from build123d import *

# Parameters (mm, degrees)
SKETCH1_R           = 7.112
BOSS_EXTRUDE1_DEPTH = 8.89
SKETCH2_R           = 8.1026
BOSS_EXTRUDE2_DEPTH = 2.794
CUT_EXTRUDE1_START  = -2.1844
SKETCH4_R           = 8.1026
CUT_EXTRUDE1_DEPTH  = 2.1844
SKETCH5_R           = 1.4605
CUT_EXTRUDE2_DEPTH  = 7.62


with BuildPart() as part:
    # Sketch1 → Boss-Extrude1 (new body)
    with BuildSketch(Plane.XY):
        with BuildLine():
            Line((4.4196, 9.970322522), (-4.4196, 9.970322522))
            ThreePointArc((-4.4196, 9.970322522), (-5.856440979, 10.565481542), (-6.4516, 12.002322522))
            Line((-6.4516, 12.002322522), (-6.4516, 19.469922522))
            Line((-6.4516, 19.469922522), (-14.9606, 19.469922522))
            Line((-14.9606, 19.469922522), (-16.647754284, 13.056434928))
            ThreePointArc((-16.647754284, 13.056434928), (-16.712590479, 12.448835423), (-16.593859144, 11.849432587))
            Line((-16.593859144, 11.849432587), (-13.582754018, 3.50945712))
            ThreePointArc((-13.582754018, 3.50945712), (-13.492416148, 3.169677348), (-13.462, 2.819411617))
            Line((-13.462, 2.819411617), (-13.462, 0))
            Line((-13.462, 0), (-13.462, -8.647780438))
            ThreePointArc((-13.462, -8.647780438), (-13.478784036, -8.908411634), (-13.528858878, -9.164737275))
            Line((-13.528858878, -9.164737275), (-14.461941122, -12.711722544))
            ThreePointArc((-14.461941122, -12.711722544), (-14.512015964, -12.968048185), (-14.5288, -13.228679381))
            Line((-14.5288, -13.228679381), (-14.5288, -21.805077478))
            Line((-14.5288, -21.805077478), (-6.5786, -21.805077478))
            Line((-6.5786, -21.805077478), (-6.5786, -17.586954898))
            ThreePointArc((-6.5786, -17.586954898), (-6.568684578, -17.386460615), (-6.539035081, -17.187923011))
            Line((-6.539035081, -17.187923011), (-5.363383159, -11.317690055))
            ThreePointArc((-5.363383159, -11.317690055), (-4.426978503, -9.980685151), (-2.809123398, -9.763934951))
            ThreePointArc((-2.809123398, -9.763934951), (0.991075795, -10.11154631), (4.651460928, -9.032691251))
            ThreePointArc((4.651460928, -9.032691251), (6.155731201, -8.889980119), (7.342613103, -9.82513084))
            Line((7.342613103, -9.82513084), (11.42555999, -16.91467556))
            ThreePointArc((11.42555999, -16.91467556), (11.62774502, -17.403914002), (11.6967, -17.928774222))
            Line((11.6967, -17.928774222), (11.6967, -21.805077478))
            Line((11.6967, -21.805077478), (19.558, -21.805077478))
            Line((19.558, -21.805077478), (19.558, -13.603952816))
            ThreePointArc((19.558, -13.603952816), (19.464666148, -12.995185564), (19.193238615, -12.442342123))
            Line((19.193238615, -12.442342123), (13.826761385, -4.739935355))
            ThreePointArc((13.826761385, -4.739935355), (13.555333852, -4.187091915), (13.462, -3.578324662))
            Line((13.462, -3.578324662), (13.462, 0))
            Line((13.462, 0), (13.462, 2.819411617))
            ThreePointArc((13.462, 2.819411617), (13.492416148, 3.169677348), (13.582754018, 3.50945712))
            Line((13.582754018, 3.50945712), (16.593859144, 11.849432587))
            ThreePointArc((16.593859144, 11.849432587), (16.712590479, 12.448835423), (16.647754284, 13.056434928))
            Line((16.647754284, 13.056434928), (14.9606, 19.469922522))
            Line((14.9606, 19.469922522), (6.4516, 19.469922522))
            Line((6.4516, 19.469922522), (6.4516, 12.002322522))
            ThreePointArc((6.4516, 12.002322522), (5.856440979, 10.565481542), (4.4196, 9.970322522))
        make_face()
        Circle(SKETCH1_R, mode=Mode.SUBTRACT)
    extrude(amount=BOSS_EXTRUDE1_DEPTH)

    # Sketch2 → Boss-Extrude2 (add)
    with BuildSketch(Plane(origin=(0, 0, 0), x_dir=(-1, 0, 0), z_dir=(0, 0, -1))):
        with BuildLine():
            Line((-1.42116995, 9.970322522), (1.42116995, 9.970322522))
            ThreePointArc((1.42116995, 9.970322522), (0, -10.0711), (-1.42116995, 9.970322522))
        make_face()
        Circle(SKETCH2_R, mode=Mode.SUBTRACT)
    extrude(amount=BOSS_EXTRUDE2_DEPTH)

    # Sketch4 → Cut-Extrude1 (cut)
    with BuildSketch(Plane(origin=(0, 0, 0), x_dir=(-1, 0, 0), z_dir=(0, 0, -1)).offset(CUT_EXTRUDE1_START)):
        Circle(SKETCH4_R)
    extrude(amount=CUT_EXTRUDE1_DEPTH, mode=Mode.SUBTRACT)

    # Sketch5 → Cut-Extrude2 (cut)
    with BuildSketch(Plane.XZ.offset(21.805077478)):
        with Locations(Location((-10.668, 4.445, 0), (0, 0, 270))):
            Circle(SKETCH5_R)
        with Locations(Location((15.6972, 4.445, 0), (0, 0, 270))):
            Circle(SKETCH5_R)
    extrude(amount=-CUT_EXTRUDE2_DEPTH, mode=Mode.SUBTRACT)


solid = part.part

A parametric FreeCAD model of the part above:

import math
import FreeCAD as App
import Part
import Sketcher

V = App.Vector
Q = App.Units.Quantity

doc = App.newDocument("Part")
body = doc.addObject("PartDesign::Body", "Body")

# Sketch on XY plane
sketch1 = body.newObject("Sketcher::SketchObject", "Sketch")
sketch1.AttachmentSupport = (doc.getObject("XY_Plane"), [""])
sketch1.MapMode = "FlatFace"
sketch1.addGeometry(Part.LineSegment(V(4.42, 9.97, 0), V(-4.42, 9.97, 0)), False)
sketch1.addGeometry(Part.ArcOfCircle(Part.Circle(V(-4.42, 12, 0), V(0, 0, 1), 2.03), math.radians(180), math.radians(270)), False)
sketch1.addGeometry(Part.LineSegment(V(-6.45, 12, 0), V(-6.45, 19.47, 0)), False)
sketch1.addGeometry(Part.LineSegment(V(-6.45, 19.47, 0), V(-14.96, 19.47, 0)), False)
sketch1.addGeometry(Part.LineSegment(V(-14.96, 19.47, 0), V(-16.65, 13.06, 0)), False)
sketch1.addGeometry(Part.ArcOfCircle(Part.Circle(V(-14.68, 12.54, 0), V(0, 0, 1), 2.03), math.radians(165), math.radians(200)), False)
sketch1.addGeometry(Part.LineSegment(V(-16.59, 11.85, 0), V(-13.58, 3.51, 0)), False)
sketch1.addGeometry(Part.ArcOfCircle(Part.Circle(V(-15.49, 2.82, 0), V(0, 0, 1), 2.03), math.radians(0), math.radians(19.85)), False)
sketch1.addGeometry(Part.LineSegment(V(-13.46, 2.82, 0), V(-13.46, -8.65, 0)), False)
sketch1.addGeometry(Part.ArcOfCircle(Part.Circle(V(-15.49, -8.65, 0), V(0, 0, 1), 2.03), math.radians(-14.74), math.radians(0)), False)
sketch1.addGeometry(Part.LineSegment(V(-13.53, -9.16, 0), V(-14.46, -12.71, 0)), False)
sketch1.addGeometry(Part.ArcOfCircle(Part.Circle(V(-12.5, -13.23, 0), V(0, 0, 1), 2.03), math.radians(165.26), math.radians(180)), False)
sketch1.addGeometry(Part.LineSegment(V(-14.53, -13.23, 0), V(-14.53, -21.81, 0)), False)
sketch1.addGeometry(Part.LineSegment(V(-14.53, -21.81, 0), V(-6.58, -21.81, 0)), False)
sketch1.addGeometry(Part.LineSegment(V(-6.58, -21.81, 0), V(-6.58, -17.59, 0)), False)
sketch1.addGeometry(Part.ArcOfCircle(Part.Circle(V(-4.55, -17.59, 0), V(0, 0, 1), 2.03), math.radians(168.68), math.radians(180)), False)
sketch1.addGeometry(Part.LineSegment(V(-6.54, -17.19, 0), V(-5.36, -11.32, 0)), False)
sketch1.addGeometry(Part.ArcOfCircle(Part.Circle(V(-3.37, -11.72, 0), V(0, 0, 1), 2.03), math.radians(74), math.radians(169)), False)
sketch1.addGeometry(Part.ArcOfCircle(Part.Circle(V(0, 0, 0), V(0, 0, 1), 10.16), math.radians(-106), math.radians(-63)), False)
sketch1.addGeometry(Part.ArcOfCircle(Part.Circle(V(5.58, -10.84, 0), V(0, 0, 1), 2.03), math.radians(30), math.radians(117)), False)
sketch1.addGeometry(Part.LineSegment(V(7.34, -9.83, 0), V(11.43, -16.91, 0)), False)
sketch1.addGeometry(Part.ArcOfCircle(Part.Circle(V(9.66, -17.93, 0), V(0, 0, 1), 2.03), math.radians(0), math.radians(30)), False)
sketch1.addGeometry(Part.LineSegment(V(11.7, -17.93, 0), V(11.7, -21.81, 0)), False)
sketch1.addGeometry(Part.LineSegment(V(11.7, -21.81, 0), V(19.56, -21.81, 0)), False)
sketch1.addGeometry(Part.LineSegment(V(19.56, -21.81, 0), V(19.56, -13.6, 0)), False)
sketch1.addGeometry(Part.ArcOfCircle(Part.Circle(V(17.53, -13.6, 0), V(0, 0, 1), 2.03), math.radians(0), math.radians(35)), False)
sketch1.addGeometry(Part.LineSegment(V(19.19, -12.44, 0), V(13.83, -4.74, 0)), False)
sketch1.addGeometry(Part.ArcOfCircle(Part.Circle(V(15.49, -3.58, 0), V(0, 0, 1), 2.03), math.radians(180), math.radians(215)), False)
sketch1.addGeometry(Part.LineSegment(V(13.46, -3.58, 0), V(13.46, 2.82, 0)), False)
sketch1.addGeometry(Part.ArcOfCircle(Part.Circle(V(15.49, 2.82, 0), V(0, 0, 1), 2.03), math.radians(160.15), math.radians(180)), False)
sketch1.addGeometry(Part.LineSegment(V(13.58, 3.51, 0), V(16.59, 11.85, 0)), False)
sketch1.addGeometry(Part.ArcOfCircle(Part.Circle(V(14.68, 12.54, 0), V(0, 0, 1), 2.03), math.radians(-20), math.radians(15)), False)
sketch1.addGeometry(Part.LineSegment(V(16.65, 13.06, 0), V(14.96, 19.47, 0)), False)
sketch1.addGeometry(Part.LineSegment(V(14.96, 19.47, 0), V(6.45, 19.47, 0)), False)
sketch1.addGeometry(Part.LineSegment(V(6.45, 19.47, 0), V(6.45, 12, 0)), False)
sketch1.addGeometry(Part.ArcOfCircle(Part.Circle(V(4.42, 12, 0), V(0, 0, 1), 2.03), math.radians(-90), math.radians(0)), False)
sketch1.addGeometry(Part.Circle(V(0, 0, 0), V(0, 0, 1), 7.11), False)
sketch1.addConstraint(Sketcher.Constraint("Tangent", 0, 2, 1, 2))
sketch1.addConstraint(Sketcher.Constraint("Tangent", 1, 1, 2, 1))
sketch1.addConstraint(Sketcher.Constraint("Coincident", 2, 2, 3, 1))
sketch1.addConstraint(Sketcher.Constraint("Coincident", 3, 2, 4, 1))
sketch1.addConstraint(Sketcher.Constraint("Tangent", 4, 2, 5, 1))
sketch1.addConstraint(Sketcher.Constraint("Tangent", 5, 2, 6, 1))
sketch1.addConstraint(Sketcher.Constraint("Tangent", 6, 2, 7, 2))
sketch1.addConstraint(Sketcher.Constraint("Tangent", 7, 1, 8, 1))
sketch1.addConstraint(Sketcher.Constraint("Tangent", 8, 2, 9, 2))
sketch1.addConstraint(Sketcher.Constraint("Tangent", 9, 1, 10, 1))
sketch1.addConstraint(Sketcher.Constraint("Tangent", 10, 2, 11, 1))
sketch1.addConstraint(Sketcher.Constraint("Tangent", 11, 2, 12, 1))
sketch1.addConstraint(Sketcher.Constraint("Coincident", 12, 2, 13, 1))
sketch1.addConstraint(Sketcher.Constraint("Coincident", 13, 2, 14, 1))
sketch1.addConstraint(Sketcher.Constraint("Tangent", 14, 2, 15, 2))
sketch1.addConstraint(Sketcher.Constraint("Tangent", 15, 1, 16, 1))
sketch1.addConstraint(Sketcher.Constraint("Tangent", 16, 2, 17, 2))
sketch1.addConstraint(Sketcher.Constraint("Tangent", 17, 1, 18, 1))
sketch1.addConstraint(Sketcher.Constraint("Tangent", 18, 2, 19, 2))
sketch1.addConstraint(Sketcher.Constraint("Tangent", 19, 1, 20, 1))
sketch1.addConstraint(Sketcher.Constraint("Tangent", 20, 2, 21, 2))
sketch1.addConstraint(Sketcher.Constraint("Tangent", 21, 1, 22, 1))
sketch1.addConstraint(Sketcher.Constraint("Coincident", 22, 2, 23, 1))
sketch1.addConstraint(Sketcher.Constraint("Coincident", 23, 2, 24, 1))
sketch1.addConstraint(Sketcher.Constraint("Tangent", 24, 2, 25, 1))
sketch1.addConstraint(Sketcher.Constraint("Tangent", 25, 2, 26, 1))
sketch1.addConstraint(Sketcher.Constraint("Tangent", 26, 2, 27, 2))
sketch1.addConstraint(Sketcher.Constraint("Tangent", 27, 1, 28, 1))
sketch1.addConstraint(Sketcher.Constraint("Tangent", 28, 2, 29, 2))
sketch1.addConstraint(Sketcher.Constraint("Tangent", 29, 1, 30, 1))
sketch1.addConstraint(Sketcher.Constraint("Tangent", 30, 2, 31, 1))
sketch1.addConstraint(Sketcher.Constraint("Tangent", 31, 2, 32, 1))
sketch1.addConstraint(Sketcher.Constraint("Coincident", 32, 2, 33, 1))
sketch1.addConstraint(Sketcher.Constraint("Coincident", 33, 2, 34, 1))
sketch1.addConstraint(Sketcher.Constraint("Tangent", 34, 2, 35, 2))
sketch1.addConstraint(Sketcher.Constraint("Tangent", 35, 1, 0, 1))
sketch1.addConstraint(Sketcher.Constraint("Horizontal", 0))
sketch1.addConstraint(Sketcher.Constraint("Vertical", 2))
sketch1.addConstraint(Sketcher.Constraint("Horizontal", 3))
sketch1.addConstraint(Sketcher.Constraint("Vertical", 8))
sketch1.addConstraint(Sketcher.Constraint("Vertical", 12))
sketch1.addConstraint(Sketcher.Constraint("Horizontal", 13))
sketch1.addConstraint(Sketcher.Constraint("Vertical", 14))
sketch1.addConstraint(Sketcher.Constraint("Vertical", 22))
sketch1.addConstraint(Sketcher.Constraint("Horizontal", 23))
sketch1.addConstraint(Sketcher.Constraint("Vertical", 24))
sketch1.addConstraint(Sketcher.Constraint("Vertical", 28))
sketch1.addConstraint(Sketcher.Constraint("Horizontal", 33))
sketch1.addConstraint(Sketcher.Constraint("Vertical", 34))
sketch1.addConstraint(Sketcher.Constraint("Coincident", 18, 3, -1, 1))
sketch1.addConstraint(Sketcher.Constraint("Coincident", 36, 3, -1, 1))
sketch1.addConstraint(Sketcher.Constraint("Equal", 1, 5))
sketch1.addConstraint(Sketcher.Constraint("Equal", 5, 7))
sketch1.addConstraint(Sketcher.Constraint("Equal", 7, 9))
sketch1.addConstraint(Sketcher.Constraint("Equal", 9, 11))
sketch1.addConstraint(Sketcher.Constraint("Equal", 11, 15))
sketch1.addConstraint(Sketcher.Constraint("Equal", 15, 17))
sketch1.addConstraint(Sketcher.Constraint("Equal", 17, 19))
sketch1.addConstraint(Sketcher.Constraint("Equal", 19, 21))
sketch1.addConstraint(Sketcher.Constraint("Equal", 21, 25))
sketch1.addConstraint(Sketcher.Constraint("Equal", 25, 27))
sketch1.addConstraint(Sketcher.Constraint("Equal", 27, 29))
sketch1.addConstraint(Sketcher.Constraint("Equal", 29, 31))
sketch1.addConstraint(Sketcher.Constraint("Equal", 31, 35))
sketch1.addConstraint(Sketcher.Constraint("Symmetric", 7, 3, 29, 3, -2))
sketch1.addConstraint(Sketcher.Constraint("Symmetric", 5, 3, 31, 3, -2))
sketch1.addConstraint(Sketcher.Constraint("Symmetric", 3, 2, 32, 2, -2))
sketch1.addConstraint(Sketcher.Constraint("Parallel", 4, 10))
sketch1.addConstraint(Sketcher.Constraint("Horizontal", 13, 2, 22, 2))
sketch1.addConstraint(Sketcher.Constraint("Equal", 3, 33))
sketch1.addConstraint(Sketcher.Constraint("Radius", 18, Q("0.4 in")))
sketch1.addConstraint(Sketcher.Constraint("Diameter", 36, Q("0.56 in")))
sketch1.addConstraint(Sketcher.Constraint("Radius", 1, Q("0.08 in")))
sketch1.addConstraint(Sketcher.Constraint("DistanceX", 0, 2, 0, 1, Q("0.348 in")))
sketch1.addConstraint(Sketcher.Constraint("DistanceX", 3, 2, 3, 1, Q("0.335 in")))
sketch1.addConstraint(Sketcher.Constraint("DistanceX", 13, 1, 13, 2, Q("0.313 in")))
sketch1.addConstraint(Sketcher.Constraint("DistanceY", 2, 1, 2, 2, Q("0.294 in")))
sketch1.addConstraint(Sketcher.Constraint("DistanceX", 7, 3, -1, 1, Q("0.61 in")))
sketch1.addConstraint(Sketcher.Constraint("DistanceX", -1, 1, 25, 3, Q("0.69 in")))
sketch1.addConstraint(Sketcher.Constraint("DistanceX", 23, 1, 23, 2, Q("0.3095 in")))
sketch1.addConstraint(Sketcher.Constraint("DistanceX", 11, 3, -1, 1, Q("0.492 in")))
sketch1.addConstraint(Sketcher.Constraint("DistanceY", 12, 2, 12, 1, 8.576398))
sketch1.addConstraint(Sketcher.Constraint("Distance", 6, 8.866902))
sketch1.addConstraint(Sketcher.Constraint("Distance", 16, 5.986802))
sketch1.addConstraint(Sketcher.Constraint("DistanceY", 11, 3, 9, 3, 4.580899))
sketch1.addConstraint(Sketcher.Constraint("DistanceY", 11, 3, 1, 3, 25.231002))
sketch1.addConstraint(Sketcher.Constraint("DistanceX", 17, 3, 19, 3, 8.952701))
sketch1.addConstraint(Sketcher.Constraint("DistanceX", 4, 2, 6, 2, 3.065))
sketch1.addConstraint(Sketcher.Constraint("DistanceY", 15, 1, 17, 3, 5.471201))
sketch1.addConstraint(Sketcher.Constraint("DistanceY", 19, 3, 19, 1, 1.014099))
sketch1.addConstraint(Sketcher.Constraint("DistanceY", 22, 2, 20, 2, 4.890402))
sketch1.addConstraint(Sketcher.Constraint("DistanceY", 24, 1, 24, 2, 8.201125))
sketch1.addConstraint(Sketcher.Constraint("DistanceY", 28, 1, 28, 2, 6.397736))
pad1 = body.newObject("PartDesign::Pad", "Pad")
pad1.Profile = sketch1
pad1.Length = Q("0.35 in")

# Sketch on XY plane
sketch2 = body.newObject("Sketcher::SketchObject", "Sketch001")
sketch2.AttachmentSupport = (doc.getObject("XY_Plane"), [""])
sketch2.MapMode = "FlatFace"
sketch2.addGeometry(Part.LineSegment(V(-1.4, 10, 0), V(1.4, 10, 0)), False)
sketch2.addGeometry(Part.ArcOfCircle(Part.Circle(V(0, 0, 0), V(0, 0, 1), 10.1), math.radians(98), math.radians(442)), False)
sketch2.addGeometry(Part.Circle(V(0, 0, 0), V(0, 0, 1), 8.1), False)
sketch2.addConstraint(Sketcher.Constraint("Coincident", 0, 1, 1, 1))
sketch2.addConstraint(Sketcher.Constraint("Coincident", 1, 2, 0, 2))
sketch2.addConstraint(Sketcher.Constraint("Horizontal", 0))
sketch2.addConstraint(Sketcher.Constraint("Coincident", 1, 3, -1, 1))
sketch2.addConstraint(Sketcher.Constraint("Coincident", 2, 3, -1, 1))
sketch2.addConstraint(Sketcher.Constraint("Diameter", 2, Q("0.638 in")))
sketch2.addConstraint(Sketcher.Constraint("Radius", 1, Q("0.3965 in")))
sketch2.addConstraint(Sketcher.Constraint("DistanceX", 0, 1, 0, 2, 2.84234))
pad2 = body.newObject("PartDesign::Pad", "Pad001")
pad2.Profile = sketch2
pad2.Length = Q("0.11 in")
pad2.Reversed = True

# Sketch on XY plane
sketch3 = body.newObject("Sketcher::SketchObject", "Sketch002")
sketch3.AttachmentSupport = (doc.getObject("XY_Plane"), [""])
sketch3.MapMode = "FlatFace"
sketch3.AttachmentOffset = App.Placement(V(0, 0, 0.086 * 25.4), App.Rotation())
sketch3.addGeometry(Part.Circle(V(0, 0, 0), V(0, 0, 1), 8), False)
sketch3.addConstraint(Sketcher.Constraint("Coincident", 0, 3, -1, 1))
sketch3.addConstraint(Sketcher.Constraint("Diameter", 0, Q("0.638 in")))
pocket1 = body.newObject("PartDesign::Pocket", "Pocket")
pocket1.Profile = sketch3
pocket1.Length = Q("0.086 in")

# Sketch on XZ plane
sketch4 = body.newObject("Sketcher::SketchObject", "Sketch003")
sketch4.AttachmentSupport = (doc.getObject("XZ_Plane"), [""])
sketch4.MapMode = "FlatFace"
sketch4.AttachmentOffset = App.Placement(V(0, 0, 21.805077), App.Rotation())
sketch4.addGeometry(Part.Circle(V(-10.7, 4.4, 0), V(0, 0, 1), 1.5), False)
sketch4.addGeometry(Part.Circle(V(15.7, 4.4, 0), V(0, 0, 1), 1.5), False)
sketch4.addConstraint(Sketcher.Constraint("Equal", 0, 1))
sketch4.addConstraint(Sketcher.Constraint("Horizontal", 0, 3, 1, 3))
sketch4.addConstraint(Sketcher.Constraint("Diameter", 0, Q("0.115 in")))
sketch4.addConstraint(Sketcher.Constraint("DistanceX", 0, 3, -1, 1, Q("0.42 in")))
sketch4.addConstraint(Sketcher.Constraint("DistanceY", -1, 1, 0, 3, Q("0.175 in")))
sketch4.addConstraint(Sketcher.Constraint("DistanceX", -1, 1, 1, 3, Q("0.618 in")))
pocket2 = body.newObject("PartDesign::Pocket", "Pocket001")
pocket2.Profile = sketch4
pocket2.Length = Q("0.3 in")

doc.recompute()
